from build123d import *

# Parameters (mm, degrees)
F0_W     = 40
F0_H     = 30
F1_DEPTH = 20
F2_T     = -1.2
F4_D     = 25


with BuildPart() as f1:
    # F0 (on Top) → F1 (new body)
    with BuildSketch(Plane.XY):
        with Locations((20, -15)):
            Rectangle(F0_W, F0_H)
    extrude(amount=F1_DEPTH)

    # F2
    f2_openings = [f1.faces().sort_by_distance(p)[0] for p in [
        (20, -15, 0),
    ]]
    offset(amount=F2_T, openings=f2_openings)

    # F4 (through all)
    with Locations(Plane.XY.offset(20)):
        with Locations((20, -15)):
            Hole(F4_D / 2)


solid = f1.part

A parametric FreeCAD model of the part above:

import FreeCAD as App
import Part
import Sketcher


def faces_at(feature, points):
    """Names of the faces that lie closest to the given points."""
    faces = feature.Shape.Faces
    near = lambda p: min(range(len(faces)), key=lambda i: faces[i].distToShape(Part.Vertex(*p))[0])
    return sorted({f"Face{near(p) + 1}" for p in points})

doc = App.newDocument("Part")
body = doc.addObject("PartDesign::Body", "Body")

# Sketch on XY plane
sketch1 = doc.addObject("Sketcher::SketchObject", "Sketch")
body.addObject(sketch1)
sketch1.AttachmentSupport = (doc.XY_Plane, [""])
sketch1.MapMode = "FlatFace"
sketch1.addGeometry([
    Part.LineSegment(App.Vector(0, 0, 0), App.Vector(0, -30, 0)),
    Part.LineSegment(App.Vector(0, -30, 0), App.Vector(40, -30, 0)),
    Part.LineSegment(App.Vector(40, -30, 0), App.Vector(40, 0, 0)),
    Part.LineSegment(App.Vector(40, 0, 0), App.Vector(0, 0, 0)),
], False)
sketch1.addConstraint([
    Sketcher.Constraint("Coincident", 0, 2, 1, 1),
    Sketcher.Constraint("Coincident", 1, 2, 2, 1),
    Sketcher.Constraint("Coincident", 2, 2, 3, 1),
    Sketcher.Constraint("Coincident", 3, 2, 0, 1),
    Sketcher.Constraint("Vertical", 0),
    Sketcher.Constraint("Horizontal", 1),
    Sketcher.Constraint("Vertical", 2),
    Sketcher.Constraint("Horizontal", 3),
    Sketcher.Constraint("Coincident", 3, 2, -1, 1),
    Sketcher.Constraint("DistanceX", 1, 1, 1, 2, 40.0),
    Sketcher.Constraint("DistanceY", 0, 2, 0, 1, 30.0),
])
pad1 = doc.addObject("PartDesign::Pad", "Pad")
body.addObject(pad1)
pad1.Profile = sketch1
pad1.Length = 20
doc.recompute()

thickness = doc.addObject("PartDesign::Thickness", "Thickness")
body.addObject(thickness)
thickness.Base = (pad1, faces_at(pad1, [(20, -15, 0)]))
thickness.Value = 1.2
thickness.Reversed = True
thickness.Join = "Arc"

# Sketch on XY plane
sketch2 = doc.addObject("Sketcher::SketchObject", "Sketch001")
body.addObject(sketch2)
sketch2.AttachmentSupport = (doc.XY_Plane, [""])
sketch2.MapMode = "FlatFace"
sketch2.AttachmentOffset = App.Placement(App.Vector(0, 0, 20), App.Rotation())
sketch2.addGeometry(Part.Circle(App.Vector(20, -15, 0), App.Vector(0, 0, 1), 12.5), False)
sketch2.addConstraint([
    Sketcher.Constraint("Diameter", 0, 25.0),
    Sketcher.Constraint("DistanceX", -1, 1, 0, 3, 20.0),
    Sketcher.Constraint("DistanceY", 0, 3, -1, 1, 15.0),
])
doc.recompute()
hole = doc.addObject("PartDesign::Hole", "Hole")
body.addObject(hole)
hole.Profile = sketch2
hole.ThreadType = "None"
hole.Diameter = 25
hole.DepthType = "ThroughAll"

doc.recompute()
